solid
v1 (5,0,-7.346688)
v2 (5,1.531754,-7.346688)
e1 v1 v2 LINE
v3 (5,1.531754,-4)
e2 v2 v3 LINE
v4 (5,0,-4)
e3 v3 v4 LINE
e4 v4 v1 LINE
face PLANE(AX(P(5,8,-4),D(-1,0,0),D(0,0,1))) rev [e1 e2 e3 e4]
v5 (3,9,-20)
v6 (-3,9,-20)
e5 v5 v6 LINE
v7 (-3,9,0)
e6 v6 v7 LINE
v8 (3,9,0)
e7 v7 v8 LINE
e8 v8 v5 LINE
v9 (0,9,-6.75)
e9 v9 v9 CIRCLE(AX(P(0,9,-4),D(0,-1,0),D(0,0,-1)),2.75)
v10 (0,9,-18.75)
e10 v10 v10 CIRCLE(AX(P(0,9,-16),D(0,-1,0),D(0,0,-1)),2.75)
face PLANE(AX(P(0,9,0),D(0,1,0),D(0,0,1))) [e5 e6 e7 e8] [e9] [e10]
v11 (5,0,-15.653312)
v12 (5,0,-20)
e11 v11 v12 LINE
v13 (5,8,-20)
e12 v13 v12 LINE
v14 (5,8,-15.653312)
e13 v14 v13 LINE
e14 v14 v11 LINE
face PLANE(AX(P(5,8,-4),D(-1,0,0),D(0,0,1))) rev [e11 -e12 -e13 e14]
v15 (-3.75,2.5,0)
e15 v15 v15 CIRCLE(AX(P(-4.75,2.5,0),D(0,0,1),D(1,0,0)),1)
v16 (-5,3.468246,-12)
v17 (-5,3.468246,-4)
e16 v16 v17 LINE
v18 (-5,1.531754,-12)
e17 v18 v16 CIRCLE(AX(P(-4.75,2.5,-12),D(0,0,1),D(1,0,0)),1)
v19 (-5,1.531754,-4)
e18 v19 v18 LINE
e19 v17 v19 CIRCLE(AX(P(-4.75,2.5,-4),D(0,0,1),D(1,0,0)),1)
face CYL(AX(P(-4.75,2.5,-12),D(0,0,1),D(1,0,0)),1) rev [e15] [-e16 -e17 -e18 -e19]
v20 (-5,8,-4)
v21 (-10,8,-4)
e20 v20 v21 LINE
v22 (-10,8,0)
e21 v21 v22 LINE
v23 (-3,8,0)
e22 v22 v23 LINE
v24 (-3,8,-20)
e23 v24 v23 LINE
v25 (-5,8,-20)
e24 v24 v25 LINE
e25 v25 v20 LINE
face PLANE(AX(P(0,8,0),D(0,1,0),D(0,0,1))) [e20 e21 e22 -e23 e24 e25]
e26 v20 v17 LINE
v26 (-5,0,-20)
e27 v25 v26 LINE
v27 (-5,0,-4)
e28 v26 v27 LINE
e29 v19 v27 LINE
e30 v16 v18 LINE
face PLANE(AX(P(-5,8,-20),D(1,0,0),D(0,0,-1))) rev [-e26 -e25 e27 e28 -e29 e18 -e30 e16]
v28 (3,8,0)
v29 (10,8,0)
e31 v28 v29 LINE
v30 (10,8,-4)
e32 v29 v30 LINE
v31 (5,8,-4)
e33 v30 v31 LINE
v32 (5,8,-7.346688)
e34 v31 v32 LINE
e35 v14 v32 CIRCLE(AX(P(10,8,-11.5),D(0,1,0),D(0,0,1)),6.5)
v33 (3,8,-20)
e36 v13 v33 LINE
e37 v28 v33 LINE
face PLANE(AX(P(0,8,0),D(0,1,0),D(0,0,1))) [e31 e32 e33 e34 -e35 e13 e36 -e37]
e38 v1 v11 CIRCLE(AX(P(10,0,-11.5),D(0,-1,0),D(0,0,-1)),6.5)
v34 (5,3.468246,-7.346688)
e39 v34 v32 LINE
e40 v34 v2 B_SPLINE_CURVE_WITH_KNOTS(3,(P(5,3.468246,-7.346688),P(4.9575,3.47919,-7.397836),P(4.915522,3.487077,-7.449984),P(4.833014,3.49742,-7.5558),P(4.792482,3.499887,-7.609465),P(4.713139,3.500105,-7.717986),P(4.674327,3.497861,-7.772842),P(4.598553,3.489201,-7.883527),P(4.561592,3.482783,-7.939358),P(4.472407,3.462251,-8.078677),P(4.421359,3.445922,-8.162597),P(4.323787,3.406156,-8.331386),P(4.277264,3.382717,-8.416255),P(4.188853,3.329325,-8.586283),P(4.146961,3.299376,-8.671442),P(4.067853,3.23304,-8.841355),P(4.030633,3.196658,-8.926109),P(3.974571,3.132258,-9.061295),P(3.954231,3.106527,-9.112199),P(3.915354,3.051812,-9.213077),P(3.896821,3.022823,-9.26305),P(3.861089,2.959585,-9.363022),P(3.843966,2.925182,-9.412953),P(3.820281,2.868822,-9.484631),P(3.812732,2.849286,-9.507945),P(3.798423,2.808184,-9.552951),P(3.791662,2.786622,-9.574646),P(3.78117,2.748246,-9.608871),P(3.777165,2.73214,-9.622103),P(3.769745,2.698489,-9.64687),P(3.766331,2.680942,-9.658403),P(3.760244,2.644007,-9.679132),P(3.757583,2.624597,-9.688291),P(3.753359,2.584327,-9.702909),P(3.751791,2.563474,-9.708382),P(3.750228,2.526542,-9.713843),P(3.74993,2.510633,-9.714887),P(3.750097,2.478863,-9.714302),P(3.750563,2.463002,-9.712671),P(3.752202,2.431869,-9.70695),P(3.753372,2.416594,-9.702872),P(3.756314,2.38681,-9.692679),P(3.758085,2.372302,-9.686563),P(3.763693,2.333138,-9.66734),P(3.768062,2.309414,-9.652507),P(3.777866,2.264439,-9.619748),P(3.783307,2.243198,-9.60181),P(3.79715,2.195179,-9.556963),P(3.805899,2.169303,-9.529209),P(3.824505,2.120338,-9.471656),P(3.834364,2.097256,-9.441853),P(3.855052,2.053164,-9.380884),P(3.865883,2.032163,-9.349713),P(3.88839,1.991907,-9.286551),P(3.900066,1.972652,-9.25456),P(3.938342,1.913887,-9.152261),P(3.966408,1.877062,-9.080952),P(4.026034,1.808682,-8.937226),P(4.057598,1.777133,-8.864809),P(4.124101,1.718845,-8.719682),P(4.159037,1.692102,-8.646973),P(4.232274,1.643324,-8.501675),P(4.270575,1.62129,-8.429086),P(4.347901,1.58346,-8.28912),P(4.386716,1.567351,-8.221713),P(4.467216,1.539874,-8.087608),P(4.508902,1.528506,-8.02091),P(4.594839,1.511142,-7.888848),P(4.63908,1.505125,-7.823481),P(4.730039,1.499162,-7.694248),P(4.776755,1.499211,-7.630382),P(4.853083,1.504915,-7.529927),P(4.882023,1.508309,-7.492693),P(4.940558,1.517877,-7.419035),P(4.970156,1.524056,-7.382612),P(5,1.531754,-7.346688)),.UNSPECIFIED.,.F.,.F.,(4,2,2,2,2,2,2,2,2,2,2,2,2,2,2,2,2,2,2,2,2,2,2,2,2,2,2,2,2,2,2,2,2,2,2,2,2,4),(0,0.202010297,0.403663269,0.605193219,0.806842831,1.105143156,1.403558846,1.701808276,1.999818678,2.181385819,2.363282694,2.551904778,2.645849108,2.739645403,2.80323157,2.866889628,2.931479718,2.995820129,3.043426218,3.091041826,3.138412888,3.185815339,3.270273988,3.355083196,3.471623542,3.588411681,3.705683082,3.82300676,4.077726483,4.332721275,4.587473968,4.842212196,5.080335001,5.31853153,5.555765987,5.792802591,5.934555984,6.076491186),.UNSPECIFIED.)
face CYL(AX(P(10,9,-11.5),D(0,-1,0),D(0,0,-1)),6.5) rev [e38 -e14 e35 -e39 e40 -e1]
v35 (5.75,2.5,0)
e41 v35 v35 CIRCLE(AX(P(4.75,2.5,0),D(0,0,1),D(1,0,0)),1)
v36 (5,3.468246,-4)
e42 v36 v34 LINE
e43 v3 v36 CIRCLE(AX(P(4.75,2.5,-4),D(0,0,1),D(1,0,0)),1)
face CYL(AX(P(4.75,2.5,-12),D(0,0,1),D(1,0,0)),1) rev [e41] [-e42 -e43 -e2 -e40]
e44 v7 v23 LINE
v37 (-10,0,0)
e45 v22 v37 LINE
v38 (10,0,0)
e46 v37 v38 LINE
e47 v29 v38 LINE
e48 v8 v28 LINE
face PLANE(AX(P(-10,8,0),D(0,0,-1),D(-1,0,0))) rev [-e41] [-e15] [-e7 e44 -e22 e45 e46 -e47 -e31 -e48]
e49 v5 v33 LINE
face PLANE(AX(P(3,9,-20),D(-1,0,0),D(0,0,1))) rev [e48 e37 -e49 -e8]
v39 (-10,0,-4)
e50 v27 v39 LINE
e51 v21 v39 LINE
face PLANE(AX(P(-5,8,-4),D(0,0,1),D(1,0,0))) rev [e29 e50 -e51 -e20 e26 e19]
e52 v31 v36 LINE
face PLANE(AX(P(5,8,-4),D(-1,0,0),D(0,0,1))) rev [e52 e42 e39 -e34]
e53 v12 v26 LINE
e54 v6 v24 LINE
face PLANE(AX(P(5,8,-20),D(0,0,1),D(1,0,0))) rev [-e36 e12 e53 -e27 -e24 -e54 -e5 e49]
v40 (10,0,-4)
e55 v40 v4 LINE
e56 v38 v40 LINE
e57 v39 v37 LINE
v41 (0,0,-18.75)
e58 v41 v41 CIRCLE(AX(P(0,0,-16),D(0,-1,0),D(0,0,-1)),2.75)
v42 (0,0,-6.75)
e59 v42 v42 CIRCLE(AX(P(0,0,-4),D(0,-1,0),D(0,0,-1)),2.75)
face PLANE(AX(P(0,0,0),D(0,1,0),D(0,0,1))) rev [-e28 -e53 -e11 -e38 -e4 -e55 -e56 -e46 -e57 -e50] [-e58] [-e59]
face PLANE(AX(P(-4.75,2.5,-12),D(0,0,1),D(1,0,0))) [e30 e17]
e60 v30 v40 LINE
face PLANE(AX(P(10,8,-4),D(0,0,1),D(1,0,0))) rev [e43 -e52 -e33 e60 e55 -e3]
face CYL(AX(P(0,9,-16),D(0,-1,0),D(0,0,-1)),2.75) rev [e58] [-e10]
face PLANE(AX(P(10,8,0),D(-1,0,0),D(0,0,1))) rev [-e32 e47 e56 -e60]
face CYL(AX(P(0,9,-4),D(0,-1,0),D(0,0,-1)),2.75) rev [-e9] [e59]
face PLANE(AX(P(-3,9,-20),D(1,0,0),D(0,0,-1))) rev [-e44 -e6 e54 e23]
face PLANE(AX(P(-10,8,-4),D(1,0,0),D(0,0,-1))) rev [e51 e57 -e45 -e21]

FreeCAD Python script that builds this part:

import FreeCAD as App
import Part
import Sketcher
from FreeCAD import Vector

doc = App.newDocument("Part")
body = doc.addObject("PartDesign::Body", "Body")

sketch1 = body.newObject("Sketcher::SketchObject", "Sketch")
sketch1.AttachmentSupport = (doc.getObject("XZ_Plane"), [""])
sketch1.MapMode = "FlatFace"
sketch1.addGeometry([
    Part.LineSegment(Vector(-10, 0, 0), Vector(10, 0, 0)),
    Part.LineSegment(Vector(10, 0, 0), Vector(10, -4, 0)),
    Part.LineSegment(Vector(10, -4, 0), Vector(5, -4, 0)),
    Part.LineSegment(Vector(5, -4, 0), Vector(5, -20, 0)),
    Part.LineSegment(Vector(5, -20, 0), Vector(-5, -20, 0)),
    Part.LineSegment(Vector(-5, -20, 0), Vector(-5, -4, 0)),
    Part.LineSegment(Vector(-5, -4, 0), Vector(-10, -4, 0)),
    Part.LineSegment(Vector(-10, -4, 0), Vector(-10, 0, 0)),
], False)
sketch1.addConstraint([
    Sketcher.Constraint("Coincident", 0, 2, 1, 1),
    Sketcher.Constraint("Coincident", 1, 2, 2, 1),
    Sketcher.Constraint("Coincident", 2, 2, 3, 1),
    Sketcher.Constraint("Coincident", 3, 2, 4, 1),
    Sketcher.Constraint("Coincident", 4, 2, 5, 1),
    Sketcher.Constraint("Coincident", 5, 2, 6, 1),
    Sketcher.Constraint("Coincident", 6, 2, 7, 1),
    Sketcher.Constraint("Coincident", 7, 2, 0, 1),
    Sketcher.Constraint("Horizontal", 0),
    Sketcher.Constraint("Vertical", 1),
    Sketcher.Constraint("Horizontal", 2),
    Sketcher.Constraint("Vertical", 3),
    Sketcher.Constraint("Horizontal", 4),
    Sketcher.Constraint("Vertical", 5),
    Sketcher.Constraint("Horizontal", 6),
    Sketcher.Constraint("Vertical", 7),
    Sketcher.Constraint("Symmetric", 0, 2, 7, 2, -1, 1),
    Sketcher.Constraint("Symmetric", 2, 2, 5, 2, -2),
    Sketcher.Constraint("DistanceX", 0, 1, 0, 2, 20.0),
    Sketcher.Constraint("DistanceX", 2, 2, 2, 1, 5.0),
    Sketcher.Constraint("DistanceY", 1, 2, 1, 1, 4.0),
    Sketcher.Constraint("DistanceY", 3, 2, 3, 1, 16.0),
])
pad1 = body.newObject("PartDesign::Pad", "Pad")
pad1.Profile = sketch1
pad1.Length = 8
pad1.Reversed = True

sketch2 = body.newObject("Sketcher::SketchObject", "Sketch001")
sketch2.AttachmentSupport = (doc.getObject("XZ_Plane"), [""])
sketch2.MapMode = "FlatFace"
sketch2.AttachmentOffset = App.Placement(Vector(0, 0, -8), App.Rotation())
sketch2.addGeometry([
    Part.LineSegment(Vector(-3, -20, 0), Vector(-3, 0, 0)),
    Part.LineSegment(Vector(-3, 0, 0), Vector(3, 0, 0)),
    Part.LineSegment(Vector(3, 0, 0), Vector(3, -20, 0)),
    Part.LineSegment(Vector(3, -20, 0), Vector(-3, -20, 0)),
], False)
sketch2.addConstraint([
    Sketcher.Constraint("Coincident", 0, 2, 1, 1),
    Sketcher.Constraint("Coincident", 1, 2, 2, 1),
    Sketcher.Constraint("Coincident", 2, 2, 3, 1),
    Sketcher.Constraint("Coincident", 3, 2, 0, 1),
    Sketcher.Constraint("Vertical", 0),
    Sketcher.Constraint("Horizontal", 1),
    Sketcher.Constraint("Vertical", 2),
    Sketcher.Constraint("Horizontal", 3),
    Sketcher.Constraint("Symmetric", 0, 2, 1, 2, -1, 1),
    Sketcher.Constraint("DistanceX", 1, 1, 1, 2, 6.0),
    Sketcher.Constraint("DistanceY", 0, 1, 0, 2, 20.0),
])
pad2 = body.newObject("PartDesign::Pad", "Pad001")
pad2.Profile = sketch2
pad2.Length = 1
pad2.Reversed = True

sketch3 = body.newObject("Sketcher::SketchObject", "Sketch002")
sketch3.AttachmentSupport = (doc.getObject("XZ_Plane"), [""])
sketch3.MapMode = "FlatFace"
sketch3.addGeometry(Part.Circle(Vector(10, -12, 0), Vector(0, 0, 1), 6), False)
sketch3.addConstraint([
    Sketcher.Constraint("Diameter", 0, 13.0),
    Sketcher.Constraint("DistanceX", -1, 1, 0, 3, 10.0),
    Sketcher.Constraint("DistanceY", 0, 3, -1, 1, 11.5),
])
pocket1 = body.newObject("PartDesign::Pocket", "Pocket")
pocket1.Profile = sketch3
pocket1.Type = "ThroughAll"

sketch4 = body.newObject("Sketcher::SketchObject", "Sketch003")
sketch4.AttachmentSupport = (doc.getObject("XZ_Plane"), [""])
sketch4.MapMode = "FlatFace"
sketch4.addGeometry([
    Part.Circle(Vector(0, -4, 0), Vector(0, 0, 1), 2.8),
    Part.Circle(Vector(0, -16, 0), Vector(0, 0, 1), 2.8),
], False)
sketch4.addConstraint([
    Sketcher.Constraint("Equal", 0, 1),
    Sketcher.Constraint("PointOnObject", 0, 3, -2),
    Sketcher.Constraint("PointOnObject", 1, 3, -2),
    Sketcher.Constraint("Diameter", 0, 5.5),
    Sketcher.Constraint("DistanceY", 0, 3, -1, 1, 4.0),
    Sketcher.Constraint("DistanceY", 1, 3, -1, 1, 16.0),
])
pocket2 = body.newObject("PartDesign::Pocket", "Pocket001")
pocket2.Profile = sketch4
pocket2.Type = "ThroughAll"

sketch5 = body.newObject("Sketcher::SketchObject", "Sketch004")
sketch5.AttachmentSupport = (doc.getObject("XY_Plane"), [""])
sketch5.MapMode = "FlatFace"
sketch5.addGeometry([
    Part.Circle(Vector(-4.8, 2.5, 0), Vector(0, 0, 1), 1),
    Part.Circle(Vector(4.8, 2.5, 0), Vector(0, 0, 1), 1),
], False)
sketch5.addConstraint([
    Sketcher.Constraint("Equal", 0, 1),
    Sketcher.Constraint("Symmetric", 0, 3, 1, 3, -2),
    Sketcher.Constraint("Diameter", 0, 2.0),
    Sketcher.Constraint("DistanceY", -1, 1, 0, 3, 2.5),
    Sketcher.Constraint("DistanceX", 0, 3, 1, 3, 9.5),
])
pocket3 = body.newObject("PartDesign::Pocket", "Pocket002")
pocket3.Profile = sketch5
pocket3.Length = 12

doc.recompute()
